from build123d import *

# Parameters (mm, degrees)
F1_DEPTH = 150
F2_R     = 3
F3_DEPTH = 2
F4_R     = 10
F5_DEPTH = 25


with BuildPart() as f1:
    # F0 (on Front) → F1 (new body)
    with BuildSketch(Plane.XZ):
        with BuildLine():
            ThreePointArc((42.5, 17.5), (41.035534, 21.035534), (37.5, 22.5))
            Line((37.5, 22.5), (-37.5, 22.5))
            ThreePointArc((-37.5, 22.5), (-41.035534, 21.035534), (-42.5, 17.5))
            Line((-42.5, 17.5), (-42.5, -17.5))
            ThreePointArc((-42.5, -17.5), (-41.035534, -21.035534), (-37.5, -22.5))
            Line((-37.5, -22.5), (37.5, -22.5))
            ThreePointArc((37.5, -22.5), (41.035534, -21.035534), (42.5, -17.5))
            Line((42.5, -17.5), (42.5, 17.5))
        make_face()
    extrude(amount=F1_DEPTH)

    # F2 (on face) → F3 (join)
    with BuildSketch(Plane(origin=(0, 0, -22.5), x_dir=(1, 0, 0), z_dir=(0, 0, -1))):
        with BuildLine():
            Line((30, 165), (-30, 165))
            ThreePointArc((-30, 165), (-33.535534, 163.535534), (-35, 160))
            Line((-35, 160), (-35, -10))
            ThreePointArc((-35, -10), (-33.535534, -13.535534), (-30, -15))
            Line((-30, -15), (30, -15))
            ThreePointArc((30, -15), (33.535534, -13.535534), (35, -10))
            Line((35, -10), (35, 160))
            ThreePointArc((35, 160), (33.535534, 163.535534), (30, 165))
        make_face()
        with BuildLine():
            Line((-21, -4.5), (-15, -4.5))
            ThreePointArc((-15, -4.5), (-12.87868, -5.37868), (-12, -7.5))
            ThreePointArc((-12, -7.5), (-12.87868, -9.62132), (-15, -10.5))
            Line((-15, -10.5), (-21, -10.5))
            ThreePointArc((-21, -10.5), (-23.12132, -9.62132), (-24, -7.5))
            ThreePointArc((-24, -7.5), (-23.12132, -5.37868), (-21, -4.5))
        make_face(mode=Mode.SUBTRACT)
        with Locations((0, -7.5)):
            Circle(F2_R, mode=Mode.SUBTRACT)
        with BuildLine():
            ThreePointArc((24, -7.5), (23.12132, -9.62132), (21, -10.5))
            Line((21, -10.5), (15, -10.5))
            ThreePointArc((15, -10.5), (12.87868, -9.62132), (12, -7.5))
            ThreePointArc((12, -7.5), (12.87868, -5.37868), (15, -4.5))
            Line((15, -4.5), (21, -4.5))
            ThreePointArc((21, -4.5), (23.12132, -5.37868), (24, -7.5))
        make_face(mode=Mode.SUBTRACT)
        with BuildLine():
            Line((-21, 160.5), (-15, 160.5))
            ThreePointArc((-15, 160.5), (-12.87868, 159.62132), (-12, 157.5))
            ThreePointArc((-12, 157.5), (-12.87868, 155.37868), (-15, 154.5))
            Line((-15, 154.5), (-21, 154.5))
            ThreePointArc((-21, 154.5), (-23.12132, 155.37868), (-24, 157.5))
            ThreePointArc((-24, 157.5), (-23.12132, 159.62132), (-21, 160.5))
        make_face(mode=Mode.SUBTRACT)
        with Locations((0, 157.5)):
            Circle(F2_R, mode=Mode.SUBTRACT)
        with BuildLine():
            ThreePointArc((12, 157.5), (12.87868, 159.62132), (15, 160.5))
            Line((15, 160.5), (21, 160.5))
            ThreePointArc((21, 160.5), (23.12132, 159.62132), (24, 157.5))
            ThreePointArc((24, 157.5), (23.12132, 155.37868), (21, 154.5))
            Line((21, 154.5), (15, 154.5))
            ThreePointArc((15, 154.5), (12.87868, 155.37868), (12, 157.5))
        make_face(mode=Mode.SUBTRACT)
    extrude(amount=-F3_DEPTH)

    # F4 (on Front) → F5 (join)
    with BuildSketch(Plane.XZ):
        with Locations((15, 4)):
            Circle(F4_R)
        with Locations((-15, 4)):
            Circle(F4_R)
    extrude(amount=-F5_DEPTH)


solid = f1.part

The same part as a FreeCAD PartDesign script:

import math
import FreeCAD as App
import Part
import Sketcher
from FreeCAD import Vector

doc = App.newDocument("Part")
body = doc.addObject("PartDesign::Body", "Body")

sketch1 = body.newObject("Sketcher::SketchObject", "Sketch")
sketch1.AttachmentSupport = (doc.getObject("XZ_Plane"), [""])
sketch1.MapMode = "FlatFace"
sketch1.addGeometry(Part.ArcOfCircle(Part.Circle(Vector(37.5, 17.5, 0), Vector(0, 0, 1), 5), math.radians(0), math.radians(90)), False)
sketch1.addGeometry(Part.LineSegment(Vector(37.5, 22.5, 0), Vector(-37.5, 22.5, 0)), False)
sketch1.addGeometry(Part.ArcOfCircle(Part.Circle(Vector(-37.5, 17.5, 0), Vector(0, 0, 1), 5), math.radians(90), math.radians(180)), False)
sketch1.addGeometry(Part.LineSegment(Vector(-42.5, 17.5, 0), Vector(-42.5, -17.5, 0)), False)
sketch1.addGeometry(Part.ArcOfCircle(Part.Circle(Vector(-37.5, -17.5, 0), Vector(0, 0, 1), 5), math.radians(180), math.radians(270)), False)
sketch1.addGeometry(Part.LineSegment(Vector(-37.5, -22.5, 0), Vector(37.5, -22.5, 0)), False)
sketch1.addGeometry(Part.ArcOfCircle(Part.Circle(Vector(37.5, -17.5, 0), Vector(0, 0, 1), 5), math.radians(-90), math.radians(0)), False)
sketch1.addGeometry(Part.LineSegment(Vector(42.5, -17.5, 0), Vector(42.5, 17.5, 0)), False)
sketch1.addConstraint(Sketcher.Constraint("Tangent", 0, 2, 1, 1))
sketch1.addConstraint(Sketcher.Constraint("Tangent", 1, 2, 2, 1))
sketch1.addConstraint(Sketcher.Constraint("Tangent", 2, 2, 3, 1))
sketch1.addConstraint(Sketcher.Constraint("Tangent", 3, 2, 4, 1))
sketch1.addConstraint(Sketcher.Constraint("Tangent", 4, 2, 5, 1))
sketch1.addConstraint(Sketcher.Constraint("Tangent", 5, 2, 6, 1))
sketch1.addConstraint(Sketcher.Constraint("Tangent", 6, 2, 7, 1))
sketch1.addConstraint(Sketcher.Constraint("Tangent", 7, 2, 0, 1))
sketch1.addConstraint(Sketcher.Constraint("Horizontal", 1))
sketch1.addConstraint(Sketcher.Constraint("Vertical", 3))
sketch1.addConstraint(Sketcher.Constraint("Horizontal", 5))
sketch1.addConstraint(Sketcher.Constraint("Vertical", 7))
sketch1.addConstraint(Sketcher.Constraint("Equal", 0, 2))
sketch1.addConstraint(Sketcher.Constraint("Equal", 2, 4))
sketch1.addConstraint(Sketcher.Constraint("Equal", 4, 6))
sketch1.addConstraint(Sketcher.Constraint("Symmetric", 0, 3, 4, 3, -1, 1))
sketch1.addConstraint(Sketcher.Constraint("Radius", 0, 5.0))
sketch1.addConstraint(Sketcher.Constraint("DistanceX", 1, 2, 1, 1, 75.0))
sketch1.addConstraint(Sketcher.Constraint("DistanceY", 3, 2, 3, 1, 35.0))
pad1 = body.newObject("PartDesign::Pad", "Pad")
pad1.Profile = sketch1
pad1.Length = 150

sketch2 = body.newObject("Sketcher::SketchObject", "Sketch001")
sketch2.AttachmentSupport = (doc.getObject("XY_Plane"), [""])
sketch2.MapMode = "FlatFace"
sketch2.AttachmentOffset = App.Placement(Vector(0, 0, -22.5), App.Rotation())
sketch2.addGeometry(Part.LineSegment(Vector(30, -165, 0), Vector(-30, -165, 0)), False)
sketch2.addGeometry(Part.ArcOfCircle(Part.Circle(Vector(-30, -160, 0), Vector(0, 0, 1), 5), math.radians(180), math.radians(270)), False)
sketch2.addGeometry(Part.LineSegment(Vector(-35, -160, 0), Vector(-35, 10, 0)), False)
sketch2.addGeometry(Part.ArcOfCircle(Part.Circle(Vector(-30, 10, 0), Vector(0, 0, 1), 5), math.radians(90), math.radians(180)), False)
sketch2.addGeometry(Part.LineSegment(Vector(-30, 15, 0), Vector(30, 15, 0)), False)
sketch2.addGeometry(Part.ArcOfCircle(Part.Circle(Vector(30, 10, 0), Vector(0, 0, 1), 5), math.radians(0), math.radians(90)), False)
sketch2.addGeometry(Part.LineSegment(Vector(35, 10, 0), Vector(35, -160, 0)), False)
sketch2.addGeometry(Part.ArcOfCircle(Part.Circle(Vector(30, -160, 0), Vector(0, 0, 1), 5), math.radians(-90), math.radians(0)), False)
sketch2.addGeometry(Part.ArcOfCircle(Part.Circle(Vector(-21, 7.5, 0), Vector(0, 0, 1), 3), math.radians(-180), math.radians(-90)), False)
sketch2.addGeometry(Part.LineSegment(Vector(-21, 4.5, 0), Vector(-15, 4.5, 0)), False)
sketch2.addGeometry(Part.ArcOfCircle(Part.Circle(Vector(-15, 7.5, 0), Vector(0, 0, 1), 3), math.radians(-90), math.radians(0)), False)
sketch2.addGeometry(Part.ArcOfCircle(Part.Circle(Vector(-15, 7.5, 0), Vector(0, 0, 1), 3), math.radians(0), math.radians(90)), False)
sketch2.addGeometry(Part.LineSegment(Vector(-15, 10.5, 0), Vector(-21, 10.5, 0)), False)
sketch2.addGeometry(Part.ArcOfCircle(Part.Circle(Vector(-21, 7.5, 0), Vector(0, 0, 1), 3), math.radians(90), math.radians(180)), False)
sketch2.addGeometry(Part.Circle(Vector(0, 7.5, 0), Vector(0, 0, 1), 3), False)
sketch2.addGeometry(Part.ArcOfCircle(Part.Circle(Vector(21, 7.5, 0), Vector(0, 0, 1), 3), math.radians(-90), math.radians(0)), False)
sketch2.addGeometry(Part.ArcOfCircle(Part.Circle(Vector(21, 7.5, 0), Vector(0, 0, 1), 3), math.radians(0), math.radians(90)), False)
sketch2.addGeometry(Part.LineSegment(Vector(21, 10.5, 0), Vector(15, 10.5, 0)), False)
sketch2.addGeometry(Part.ArcOfCircle(Part.Circle(Vector(15, 7.5, 0), Vector(0, 0, 1), 3), math.radians(90), math.radians(180)), False)
sketch2.addGeometry(Part.ArcOfCircle(Part.Circle(Vector(15, 7.5, 0), Vector(0, 0, 1), 3), math.radians(-180), math.radians(-90)), False)
sketch2.addGeometry(Part.LineSegment(Vector(15, 4.5, 0), Vector(21, 4.5, 0)), False)
sketch2.addGeometry(Part.ArcOfCircle(Part.Circle(Vector(-21, -157.5, 0), Vector(0, 0, 1), 3), math.radians(-180), math.radians(-90)), False)
sketch2.addGeometry(Part.LineSegment(Vector(-21, -160.5, 0), Vector(-15, -160.5, 0)), False)
sketch2.addGeometry(Part.ArcOfCircle(Part.Circle(Vector(-15, -157.5, 0), Vector(0, 0, 1), 3), math.radians(-90), math.radians(0)), False)
sketch2.addGeometry(Part.ArcOfCircle(Part.Circle(Vector(-15, -157.5, 0), Vector(0, 0, 1), 3), math.radians(0), math.radians(90)), False)
sketch2.addGeometry(Part.LineSegment(Vector(-15, -154.5, 0), Vector(-21, -154.5, 0)), False)
sketch2.addGeometry(Part.ArcOfCircle(Part.Circle(Vector(-21, -157.5, 0), Vector(0, 0, 1), 3), math.radians(90), math.radians(180)), False)
sketch2.addGeometry(Part.Circle(Vector(0, -157.5, 0), Vector(0, 0, 1), 3), False)
sketch2.addGeometry(Part.ArcOfCircle(Part.Circle(Vector(15, -157.5, 0), Vector(0, 0, 1), 3), math.radians(90), math.radians(180)), False)
sketch2.addGeometry(Part.ArcOfCircle(Part.Circle(Vector(15, -157.5, 0), Vector(0, 0, 1), 3), math.radians(-180), math.radians(-90)), False)
sketch2.addGeometry(Part.LineSegment(Vector(15, -160.5, 0), Vector(21, -160.5, 0)), False)
sketch2.addGeometry(Part.ArcOfCircle(Part.Circle(Vector(21, -157.5, 0), Vector(0, 0, 1), 3), math.radians(-90), math.radians(0)), False)
sketch2.addGeometry(Part.ArcOfCircle(Part.Circle(Vector(21, -157.5, 0), Vector(0, 0, 1), 3), math.radians(0), math.radians(90)), False)
sketch2.addGeometry(Part.LineSegment(Vector(21, -154.5, 0), Vector(15, -154.5, 0)), False)
sketch2.addConstraint(Sketcher.Constraint("Tangent", 0, 2, 1, 2))
sketch2.addConstraint(Sketcher.Constraint("Tangent", 1, 1, 2, 1))
sketch2.addConstraint(Sketcher.Constraint("Tangent", 2, 2, 3, 2))
sketch2.addConstraint(Sketcher.Constraint("Tangent", 3, 1, 4, 1))
sketch2.addConstraint(Sketcher.Constraint("Tangent", 4, 2, 5, 2))
sketch2.addConstraint(Sketcher.Constraint("Tangent", 5, 1, 6, 1))
sketch2.addConstraint(Sketcher.Constraint("Tangent", 6, 2, 7, 2))
sketch2.addConstraint(Sketcher.Constraint("Tangent", 7, 1, 0, 1))
sketch2.addConstraint(Sketcher.Constraint("Tangent", 8, 2, 9, 1))
sketch2.addConstraint(Sketcher.Constraint("Tangent", 9, 2, 10, 1))
sketch2.addConstraint(Sketcher.Constraint("Tangent", 10, 2, 11, 1))
sketch2.addConstraint(Sketcher.Constraint("Tangent", 11, 2, 12, 1))
sketch2.addConstraint(Sketcher.Constraint("Tangent", 12, 2, 13, 1))
sketch2.addConstraint(Sketcher.Constraint("Tangent", 13, 2, 8, 1))
sketch2.addConstraint(Sketcher.Constraint("Tangent", 15, 2, 16, 1))
sketch2.addConstraint(Sketcher.Constraint("Tangent", 16, 2, 17, 1))
sketch2.addConstraint(Sketcher.Constraint("Tangent", 17, 2, 18, 1))
sketch2.addConstraint(Sketcher.Constraint("Tangent", 18, 2, 19, 1))
sketch2.addConstraint(Sketcher.Constraint("Tangent", 19, 2, 20, 1))
sketch2.addConstraint(Sketcher.Constraint("Tangent", 20, 2, 15, 1))
sketch2.addConstraint(Sketcher.Constraint("Tangent", 21, 2, 22, 1))
sketch2.addConstraint(Sketcher.Constraint("Tangent", 22, 2, 23, 1))
sketch2.addConstraint(Sketcher.Constraint("Tangent", 23, 2, 24, 1))
sketch2.addConstraint(Sketcher.Constraint("Tangent", 24, 2, 25, 1))
sketch2.addConstraint(Sketcher.Constraint("Tangent", 25, 2, 26, 1))
sketch2.addConstraint(Sketcher.Constraint("Tangent", 26, 2, 21, 1))
sketch2.addConstraint(Sketcher.Constraint("Tangent", 28, 2, 29, 1))
sketch2.addConstraint(Sketcher.Constraint("Tangent", 29, 2, 30, 1))
sketch2.addConstraint(Sketcher.Constraint("Tangent", 30, 2, 31, 1))
sketch2.addConstraint(Sketcher.Constraint("Tangent", 31, 2, 32, 1))
sketch2.addConstraint(Sketcher.Constraint("Tangent", 32, 2, 33, 1))
sketch2.addConstraint(Sketcher.Constraint("Tangent", 33, 2, 28, 1))
sketch2.addConstraint(Sketcher.Constraint("Horizontal", 0))
sketch2.addConstraint(Sketcher.Constraint("Vertical", 2))
sketch2.addConstraint(Sketcher.Constraint("Horizontal", 4))
sketch2.addConstraint(Sketcher.Constraint("Vertical", 6))
sketch2.addConstraint(Sketcher.Constraint("Horizontal", 9))
sketch2.addConstraint(Sketcher.Constraint("Horizontal", 12))
sketch2.addConstraint(Sketcher.Constraint("Horizontal", 17))
sketch2.addConstraint(Sketcher.Constraint("Horizontal", 20))
sketch2.addConstraint(Sketcher.Constraint("Horizontal", 22))
sketch2.addConstraint(Sketcher.Constraint("Horizontal", 25))
sketch2.addConstraint(Sketcher.Constraint("Horizontal", 30))
sketch2.addConstraint(Sketcher.Constraint("Horizontal", 33))
sketch2.addConstraint(Sketcher.Constraint("Equal", 1, 3))
sketch2.addConstraint(Sketcher.Constraint("Equal", 3, 5))
sketch2.addConstraint(Sketcher.Constraint("Equal", 5, 7))
sketch2.addConstraint(Sketcher.Constraint("Equal", 8, 10))
sketch2.addConstraint(Sketcher.Constraint("Equal", 10, 11))
sketch2.addConstraint(Sketcher.Constraint("Equal", 13, 14))
sketch2.addConstraint(Sketcher.Constraint("Equal", 14, 15))
sketch2.addConstraint(Sketcher.Constraint("Equal", 15, 16))
sketch2.addConstraint(Sketcher.Constraint("Equal", 16, 18))
sketch2.addConstraint(Sketcher.Constraint("Equal", 19, 21))
sketch2.addConstraint(Sketcher.Constraint("Equal", 21, 23))
sketch2.addConstraint(Sketcher.Constraint("Equal", 23, 24))
sketch2.addConstraint(Sketcher.Constraint("Equal", 26, 27))
sketch2.addConstraint(Sketcher.Constraint("Equal", 27, 28))
sketch2.addConstraint(Sketcher.Constraint("Equal", 28, 29))
sketch2.addConstraint(Sketcher.Constraint("Equal", 29, 31))
sketch2.addConstraint(Sketcher.Constraint("Symmetric", 8, 3, 15, 3, -2))
sketch2.addConstraint(Sketcher.Constraint("Symmetric", 23, 3, 28, 3, -2))
sketch2.addConstraint(Sketcher.Constraint("Symmetric", 10, 2, 18, 2, -2))
sketch2.addConstraint(Sketcher.Constraint("Symmetric", 26, 2, 31, 2, -2))
sketch2.addConstraint(Sketcher.Constraint("PointOnObject", 14, 3, -2))
sketch2.addConstraint(Sketcher.Constraint("PointOnObject", 27, 3, -2))
sketch2.addConstraint(Sketcher.Constraint("Horizontal", 13, 3, 14, 3))
sketch2.addConstraint(Sketcher.Constraint("Horizontal", 26, 3, 27, 3))
sketch2.addConstraint(Sketcher.Constraint("Horizontal", 19, 3, 10, 2))
sketch2.addConstraint(Sketcher.Constraint("Horizontal", 10, 2, 13, 2))
sketch2.addConstraint(Sketcher.Constraint("Horizontal", 13, 2, 15, 2))
sketch2.addConstraint(Sketcher.Constraint("Horizontal", 32, 3, 23, 2))
sketch2.addConstraint(Sketcher.Constraint("Horizontal", 23, 2, 26, 2))
sketch2.addConstraint(Sketcher.Constraint("Horizontal", 26, 2, 28, 2))
sketch2.addConstraint(Sketcher.Constraint("Vertical", 13, 3, 21, 3))
sketch2.addConstraint(Sketcher.Constraint("Vertical", 11, 3, 23, 3))
sketch2.addConstraint(Sketcher.Constraint("Diameter", 14, 6.0))
sketch2.addConstraint(Sketcher.Constraint("Radius", 1, 5.0))
sketch2.addConstraint(Sketcher.Constraint("DistanceX", 0, 2, 0, 1, 60.0))
sketch2.addConstraint(Sketcher.Constraint("DistanceX", 9, 1, 9, 2, 6.0))
sketch2.addConstraint(Sketcher.Constraint("DistanceY", 2, 1, 2, 2, 170.0))
sketch2.addConstraint(Sketcher.Constraint("DistanceX", 1, 3, -1, 1, 30.0))
sketch2.addConstraint(Sketcher.Constraint("DistanceY", 1, 3, -1, 1, 160.0))
sketch2.addConstraint(Sketcher.Constraint("DistanceX", 8, 3, -1, 1, 20.999999))
sketch2.addConstraint(Sketcher.Constraint("DistanceY", 21, 3, 8, 3, 165.0))
sketch2.addConstraint(Sketcher.Constraint("DistanceY", -1, 1, 8, 3, 7.500001))
pad2 = body.newObject("PartDesign::Pad", "Pad001")
pad2.Profile = sketch2
pad2.Length = 2

sketch3 = body.newObject("Sketcher::SketchObject", "Sketch002")
sketch3.AttachmentSupport = (doc.getObject("XZ_Plane"), [""])
sketch3.MapMode = "FlatFace"
sketch3.addGeometry(Part.Circle(Vector(15, 4, 0), Vector(0, 0, 1), 10), False)
sketch3.addGeometry(Part.Circle(Vector(-15, 4, 0), Vector(0, 0, 1), 10), False)
sketch3.addConstraint(Sketcher.Constraint("Equal", 0, 1))
sketch3.addConstraint(Sketcher.Constraint("Symmetric", 0, 3, 1, 3, -2))
sketch3.addConstraint(Sketcher.Constraint("Diameter", 0, 20.0))
sketch3.addConstraint(Sketcher.Constraint("DistanceX", -1, 1, 0, 3, 15.0))
sketch3.addConstraint(Sketcher.Constraint("DistanceY", -1, 1, 0, 3, 4.0))
pad3 = body.newObject("PartDesign::Pad", "Pad002")
pad3.Profile = sketch3
pad3.Length = 25
pad3.Reversed = True

doc.recompute()
